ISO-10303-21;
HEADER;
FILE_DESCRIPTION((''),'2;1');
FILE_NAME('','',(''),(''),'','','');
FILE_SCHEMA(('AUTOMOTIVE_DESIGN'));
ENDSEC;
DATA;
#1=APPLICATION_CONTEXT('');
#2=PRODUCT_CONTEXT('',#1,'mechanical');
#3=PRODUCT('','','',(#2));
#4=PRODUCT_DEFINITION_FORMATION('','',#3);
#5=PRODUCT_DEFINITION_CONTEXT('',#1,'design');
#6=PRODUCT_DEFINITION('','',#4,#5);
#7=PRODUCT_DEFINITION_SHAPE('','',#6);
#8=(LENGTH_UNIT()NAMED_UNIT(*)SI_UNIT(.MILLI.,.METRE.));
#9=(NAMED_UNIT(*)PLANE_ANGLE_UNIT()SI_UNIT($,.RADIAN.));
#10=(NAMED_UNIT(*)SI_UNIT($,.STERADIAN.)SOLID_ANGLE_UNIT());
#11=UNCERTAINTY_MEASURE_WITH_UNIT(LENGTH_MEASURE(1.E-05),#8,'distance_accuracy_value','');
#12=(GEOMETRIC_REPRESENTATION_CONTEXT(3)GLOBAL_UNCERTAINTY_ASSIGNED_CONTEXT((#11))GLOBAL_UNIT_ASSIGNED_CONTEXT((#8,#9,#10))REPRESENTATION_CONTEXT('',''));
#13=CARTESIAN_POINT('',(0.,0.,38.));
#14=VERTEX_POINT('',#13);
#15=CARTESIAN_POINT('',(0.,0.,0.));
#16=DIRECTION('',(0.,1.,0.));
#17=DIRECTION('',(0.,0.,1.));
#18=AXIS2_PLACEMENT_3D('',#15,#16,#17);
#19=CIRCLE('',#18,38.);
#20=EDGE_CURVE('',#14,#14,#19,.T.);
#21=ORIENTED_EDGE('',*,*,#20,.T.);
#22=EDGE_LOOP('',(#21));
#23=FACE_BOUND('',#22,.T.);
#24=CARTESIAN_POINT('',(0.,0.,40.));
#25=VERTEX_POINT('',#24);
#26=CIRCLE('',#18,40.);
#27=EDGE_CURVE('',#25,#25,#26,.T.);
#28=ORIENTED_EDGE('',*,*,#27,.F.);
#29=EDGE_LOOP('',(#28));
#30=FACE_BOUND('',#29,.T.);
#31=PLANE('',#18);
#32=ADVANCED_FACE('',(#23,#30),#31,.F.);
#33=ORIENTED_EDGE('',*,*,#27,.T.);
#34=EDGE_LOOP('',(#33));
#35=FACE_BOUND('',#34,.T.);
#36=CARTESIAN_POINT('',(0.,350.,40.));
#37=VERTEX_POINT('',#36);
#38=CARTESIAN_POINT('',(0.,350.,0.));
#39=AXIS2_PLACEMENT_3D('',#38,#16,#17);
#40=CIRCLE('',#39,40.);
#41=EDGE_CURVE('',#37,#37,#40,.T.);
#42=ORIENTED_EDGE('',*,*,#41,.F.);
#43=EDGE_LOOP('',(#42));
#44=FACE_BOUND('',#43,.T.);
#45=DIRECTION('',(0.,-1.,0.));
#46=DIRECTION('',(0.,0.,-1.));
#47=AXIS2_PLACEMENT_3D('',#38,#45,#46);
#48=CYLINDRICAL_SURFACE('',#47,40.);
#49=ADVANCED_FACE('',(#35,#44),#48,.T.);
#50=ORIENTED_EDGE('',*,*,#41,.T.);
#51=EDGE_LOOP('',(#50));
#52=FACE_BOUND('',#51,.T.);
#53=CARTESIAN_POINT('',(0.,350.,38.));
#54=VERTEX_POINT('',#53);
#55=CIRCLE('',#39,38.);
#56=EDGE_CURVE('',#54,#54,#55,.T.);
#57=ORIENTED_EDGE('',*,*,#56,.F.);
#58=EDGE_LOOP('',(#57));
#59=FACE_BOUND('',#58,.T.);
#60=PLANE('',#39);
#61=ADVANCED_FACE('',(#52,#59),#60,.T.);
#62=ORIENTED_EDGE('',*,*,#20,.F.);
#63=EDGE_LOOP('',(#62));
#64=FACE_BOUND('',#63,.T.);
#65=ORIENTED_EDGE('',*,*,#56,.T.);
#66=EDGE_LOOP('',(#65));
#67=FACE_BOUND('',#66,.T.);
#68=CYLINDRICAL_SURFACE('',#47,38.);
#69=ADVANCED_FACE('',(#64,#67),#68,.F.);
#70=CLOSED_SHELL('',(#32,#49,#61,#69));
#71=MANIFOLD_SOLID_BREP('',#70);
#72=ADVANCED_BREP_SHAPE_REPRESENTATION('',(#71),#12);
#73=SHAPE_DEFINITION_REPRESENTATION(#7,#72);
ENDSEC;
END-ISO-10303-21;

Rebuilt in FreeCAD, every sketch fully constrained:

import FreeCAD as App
import Part
import Sketcher
Q = App.Units.Quantity

doc = App.newDocument("Part")
params = doc.addObject("Spreadsheet::Sheet", "Params")
for row, (alias, value) in enumerate([
    ("sketch1_diameter", "80 mm"),
    ("sketch1_diameter2", "76 mm"),
    ("pad1_length", "350 mm"),
], start=1):
    params.set(f"A{row}", alias)
    params.set(f"B{row}", "=" + value)
    params.setAlias(f"B{row}", alias)

body = doc.addObject("PartDesign::Body", "Body")

sketch1 = body.newObject("Sketcher::SketchObject", "Sketch")
sketch1.AttachmentSupport = (doc.getObject("XZ_Plane"), [""])
sketch1.MapMode = "FlatFace"
sketch1.addGeometry([
    Part.Circle(App.Vector(0, 0, 0), App.Vector(0, 0, 1), 40),
    Part.Circle(App.Vector(0, 0, 0), App.Vector(0, 0, 1), 38),
], False)
sketch1.addConstraint([
    Sketcher.Constraint("Coincident", 0, 3, -1, 1),
    Sketcher.Constraint("Coincident", 1, 3, -1, 1),
    Sketcher.Constraint("Diameter", 0, Q("80 mm")),
    Sketcher.Constraint("Diameter", 1, Q("76 mm")),
])
sketch1.setExpression("Constraints[2]", "Params.sketch1_diameter")
sketch1.setExpression("Constraints[3]", "Params.sketch1_diameter2")
pad1 = body.newObject("PartDesign::Pad", "Pad")
pad1.Profile = sketch1
pad1.setExpression("Length", "Params.pad1_length")
pad1.Reversed = True

doc.recompute()
